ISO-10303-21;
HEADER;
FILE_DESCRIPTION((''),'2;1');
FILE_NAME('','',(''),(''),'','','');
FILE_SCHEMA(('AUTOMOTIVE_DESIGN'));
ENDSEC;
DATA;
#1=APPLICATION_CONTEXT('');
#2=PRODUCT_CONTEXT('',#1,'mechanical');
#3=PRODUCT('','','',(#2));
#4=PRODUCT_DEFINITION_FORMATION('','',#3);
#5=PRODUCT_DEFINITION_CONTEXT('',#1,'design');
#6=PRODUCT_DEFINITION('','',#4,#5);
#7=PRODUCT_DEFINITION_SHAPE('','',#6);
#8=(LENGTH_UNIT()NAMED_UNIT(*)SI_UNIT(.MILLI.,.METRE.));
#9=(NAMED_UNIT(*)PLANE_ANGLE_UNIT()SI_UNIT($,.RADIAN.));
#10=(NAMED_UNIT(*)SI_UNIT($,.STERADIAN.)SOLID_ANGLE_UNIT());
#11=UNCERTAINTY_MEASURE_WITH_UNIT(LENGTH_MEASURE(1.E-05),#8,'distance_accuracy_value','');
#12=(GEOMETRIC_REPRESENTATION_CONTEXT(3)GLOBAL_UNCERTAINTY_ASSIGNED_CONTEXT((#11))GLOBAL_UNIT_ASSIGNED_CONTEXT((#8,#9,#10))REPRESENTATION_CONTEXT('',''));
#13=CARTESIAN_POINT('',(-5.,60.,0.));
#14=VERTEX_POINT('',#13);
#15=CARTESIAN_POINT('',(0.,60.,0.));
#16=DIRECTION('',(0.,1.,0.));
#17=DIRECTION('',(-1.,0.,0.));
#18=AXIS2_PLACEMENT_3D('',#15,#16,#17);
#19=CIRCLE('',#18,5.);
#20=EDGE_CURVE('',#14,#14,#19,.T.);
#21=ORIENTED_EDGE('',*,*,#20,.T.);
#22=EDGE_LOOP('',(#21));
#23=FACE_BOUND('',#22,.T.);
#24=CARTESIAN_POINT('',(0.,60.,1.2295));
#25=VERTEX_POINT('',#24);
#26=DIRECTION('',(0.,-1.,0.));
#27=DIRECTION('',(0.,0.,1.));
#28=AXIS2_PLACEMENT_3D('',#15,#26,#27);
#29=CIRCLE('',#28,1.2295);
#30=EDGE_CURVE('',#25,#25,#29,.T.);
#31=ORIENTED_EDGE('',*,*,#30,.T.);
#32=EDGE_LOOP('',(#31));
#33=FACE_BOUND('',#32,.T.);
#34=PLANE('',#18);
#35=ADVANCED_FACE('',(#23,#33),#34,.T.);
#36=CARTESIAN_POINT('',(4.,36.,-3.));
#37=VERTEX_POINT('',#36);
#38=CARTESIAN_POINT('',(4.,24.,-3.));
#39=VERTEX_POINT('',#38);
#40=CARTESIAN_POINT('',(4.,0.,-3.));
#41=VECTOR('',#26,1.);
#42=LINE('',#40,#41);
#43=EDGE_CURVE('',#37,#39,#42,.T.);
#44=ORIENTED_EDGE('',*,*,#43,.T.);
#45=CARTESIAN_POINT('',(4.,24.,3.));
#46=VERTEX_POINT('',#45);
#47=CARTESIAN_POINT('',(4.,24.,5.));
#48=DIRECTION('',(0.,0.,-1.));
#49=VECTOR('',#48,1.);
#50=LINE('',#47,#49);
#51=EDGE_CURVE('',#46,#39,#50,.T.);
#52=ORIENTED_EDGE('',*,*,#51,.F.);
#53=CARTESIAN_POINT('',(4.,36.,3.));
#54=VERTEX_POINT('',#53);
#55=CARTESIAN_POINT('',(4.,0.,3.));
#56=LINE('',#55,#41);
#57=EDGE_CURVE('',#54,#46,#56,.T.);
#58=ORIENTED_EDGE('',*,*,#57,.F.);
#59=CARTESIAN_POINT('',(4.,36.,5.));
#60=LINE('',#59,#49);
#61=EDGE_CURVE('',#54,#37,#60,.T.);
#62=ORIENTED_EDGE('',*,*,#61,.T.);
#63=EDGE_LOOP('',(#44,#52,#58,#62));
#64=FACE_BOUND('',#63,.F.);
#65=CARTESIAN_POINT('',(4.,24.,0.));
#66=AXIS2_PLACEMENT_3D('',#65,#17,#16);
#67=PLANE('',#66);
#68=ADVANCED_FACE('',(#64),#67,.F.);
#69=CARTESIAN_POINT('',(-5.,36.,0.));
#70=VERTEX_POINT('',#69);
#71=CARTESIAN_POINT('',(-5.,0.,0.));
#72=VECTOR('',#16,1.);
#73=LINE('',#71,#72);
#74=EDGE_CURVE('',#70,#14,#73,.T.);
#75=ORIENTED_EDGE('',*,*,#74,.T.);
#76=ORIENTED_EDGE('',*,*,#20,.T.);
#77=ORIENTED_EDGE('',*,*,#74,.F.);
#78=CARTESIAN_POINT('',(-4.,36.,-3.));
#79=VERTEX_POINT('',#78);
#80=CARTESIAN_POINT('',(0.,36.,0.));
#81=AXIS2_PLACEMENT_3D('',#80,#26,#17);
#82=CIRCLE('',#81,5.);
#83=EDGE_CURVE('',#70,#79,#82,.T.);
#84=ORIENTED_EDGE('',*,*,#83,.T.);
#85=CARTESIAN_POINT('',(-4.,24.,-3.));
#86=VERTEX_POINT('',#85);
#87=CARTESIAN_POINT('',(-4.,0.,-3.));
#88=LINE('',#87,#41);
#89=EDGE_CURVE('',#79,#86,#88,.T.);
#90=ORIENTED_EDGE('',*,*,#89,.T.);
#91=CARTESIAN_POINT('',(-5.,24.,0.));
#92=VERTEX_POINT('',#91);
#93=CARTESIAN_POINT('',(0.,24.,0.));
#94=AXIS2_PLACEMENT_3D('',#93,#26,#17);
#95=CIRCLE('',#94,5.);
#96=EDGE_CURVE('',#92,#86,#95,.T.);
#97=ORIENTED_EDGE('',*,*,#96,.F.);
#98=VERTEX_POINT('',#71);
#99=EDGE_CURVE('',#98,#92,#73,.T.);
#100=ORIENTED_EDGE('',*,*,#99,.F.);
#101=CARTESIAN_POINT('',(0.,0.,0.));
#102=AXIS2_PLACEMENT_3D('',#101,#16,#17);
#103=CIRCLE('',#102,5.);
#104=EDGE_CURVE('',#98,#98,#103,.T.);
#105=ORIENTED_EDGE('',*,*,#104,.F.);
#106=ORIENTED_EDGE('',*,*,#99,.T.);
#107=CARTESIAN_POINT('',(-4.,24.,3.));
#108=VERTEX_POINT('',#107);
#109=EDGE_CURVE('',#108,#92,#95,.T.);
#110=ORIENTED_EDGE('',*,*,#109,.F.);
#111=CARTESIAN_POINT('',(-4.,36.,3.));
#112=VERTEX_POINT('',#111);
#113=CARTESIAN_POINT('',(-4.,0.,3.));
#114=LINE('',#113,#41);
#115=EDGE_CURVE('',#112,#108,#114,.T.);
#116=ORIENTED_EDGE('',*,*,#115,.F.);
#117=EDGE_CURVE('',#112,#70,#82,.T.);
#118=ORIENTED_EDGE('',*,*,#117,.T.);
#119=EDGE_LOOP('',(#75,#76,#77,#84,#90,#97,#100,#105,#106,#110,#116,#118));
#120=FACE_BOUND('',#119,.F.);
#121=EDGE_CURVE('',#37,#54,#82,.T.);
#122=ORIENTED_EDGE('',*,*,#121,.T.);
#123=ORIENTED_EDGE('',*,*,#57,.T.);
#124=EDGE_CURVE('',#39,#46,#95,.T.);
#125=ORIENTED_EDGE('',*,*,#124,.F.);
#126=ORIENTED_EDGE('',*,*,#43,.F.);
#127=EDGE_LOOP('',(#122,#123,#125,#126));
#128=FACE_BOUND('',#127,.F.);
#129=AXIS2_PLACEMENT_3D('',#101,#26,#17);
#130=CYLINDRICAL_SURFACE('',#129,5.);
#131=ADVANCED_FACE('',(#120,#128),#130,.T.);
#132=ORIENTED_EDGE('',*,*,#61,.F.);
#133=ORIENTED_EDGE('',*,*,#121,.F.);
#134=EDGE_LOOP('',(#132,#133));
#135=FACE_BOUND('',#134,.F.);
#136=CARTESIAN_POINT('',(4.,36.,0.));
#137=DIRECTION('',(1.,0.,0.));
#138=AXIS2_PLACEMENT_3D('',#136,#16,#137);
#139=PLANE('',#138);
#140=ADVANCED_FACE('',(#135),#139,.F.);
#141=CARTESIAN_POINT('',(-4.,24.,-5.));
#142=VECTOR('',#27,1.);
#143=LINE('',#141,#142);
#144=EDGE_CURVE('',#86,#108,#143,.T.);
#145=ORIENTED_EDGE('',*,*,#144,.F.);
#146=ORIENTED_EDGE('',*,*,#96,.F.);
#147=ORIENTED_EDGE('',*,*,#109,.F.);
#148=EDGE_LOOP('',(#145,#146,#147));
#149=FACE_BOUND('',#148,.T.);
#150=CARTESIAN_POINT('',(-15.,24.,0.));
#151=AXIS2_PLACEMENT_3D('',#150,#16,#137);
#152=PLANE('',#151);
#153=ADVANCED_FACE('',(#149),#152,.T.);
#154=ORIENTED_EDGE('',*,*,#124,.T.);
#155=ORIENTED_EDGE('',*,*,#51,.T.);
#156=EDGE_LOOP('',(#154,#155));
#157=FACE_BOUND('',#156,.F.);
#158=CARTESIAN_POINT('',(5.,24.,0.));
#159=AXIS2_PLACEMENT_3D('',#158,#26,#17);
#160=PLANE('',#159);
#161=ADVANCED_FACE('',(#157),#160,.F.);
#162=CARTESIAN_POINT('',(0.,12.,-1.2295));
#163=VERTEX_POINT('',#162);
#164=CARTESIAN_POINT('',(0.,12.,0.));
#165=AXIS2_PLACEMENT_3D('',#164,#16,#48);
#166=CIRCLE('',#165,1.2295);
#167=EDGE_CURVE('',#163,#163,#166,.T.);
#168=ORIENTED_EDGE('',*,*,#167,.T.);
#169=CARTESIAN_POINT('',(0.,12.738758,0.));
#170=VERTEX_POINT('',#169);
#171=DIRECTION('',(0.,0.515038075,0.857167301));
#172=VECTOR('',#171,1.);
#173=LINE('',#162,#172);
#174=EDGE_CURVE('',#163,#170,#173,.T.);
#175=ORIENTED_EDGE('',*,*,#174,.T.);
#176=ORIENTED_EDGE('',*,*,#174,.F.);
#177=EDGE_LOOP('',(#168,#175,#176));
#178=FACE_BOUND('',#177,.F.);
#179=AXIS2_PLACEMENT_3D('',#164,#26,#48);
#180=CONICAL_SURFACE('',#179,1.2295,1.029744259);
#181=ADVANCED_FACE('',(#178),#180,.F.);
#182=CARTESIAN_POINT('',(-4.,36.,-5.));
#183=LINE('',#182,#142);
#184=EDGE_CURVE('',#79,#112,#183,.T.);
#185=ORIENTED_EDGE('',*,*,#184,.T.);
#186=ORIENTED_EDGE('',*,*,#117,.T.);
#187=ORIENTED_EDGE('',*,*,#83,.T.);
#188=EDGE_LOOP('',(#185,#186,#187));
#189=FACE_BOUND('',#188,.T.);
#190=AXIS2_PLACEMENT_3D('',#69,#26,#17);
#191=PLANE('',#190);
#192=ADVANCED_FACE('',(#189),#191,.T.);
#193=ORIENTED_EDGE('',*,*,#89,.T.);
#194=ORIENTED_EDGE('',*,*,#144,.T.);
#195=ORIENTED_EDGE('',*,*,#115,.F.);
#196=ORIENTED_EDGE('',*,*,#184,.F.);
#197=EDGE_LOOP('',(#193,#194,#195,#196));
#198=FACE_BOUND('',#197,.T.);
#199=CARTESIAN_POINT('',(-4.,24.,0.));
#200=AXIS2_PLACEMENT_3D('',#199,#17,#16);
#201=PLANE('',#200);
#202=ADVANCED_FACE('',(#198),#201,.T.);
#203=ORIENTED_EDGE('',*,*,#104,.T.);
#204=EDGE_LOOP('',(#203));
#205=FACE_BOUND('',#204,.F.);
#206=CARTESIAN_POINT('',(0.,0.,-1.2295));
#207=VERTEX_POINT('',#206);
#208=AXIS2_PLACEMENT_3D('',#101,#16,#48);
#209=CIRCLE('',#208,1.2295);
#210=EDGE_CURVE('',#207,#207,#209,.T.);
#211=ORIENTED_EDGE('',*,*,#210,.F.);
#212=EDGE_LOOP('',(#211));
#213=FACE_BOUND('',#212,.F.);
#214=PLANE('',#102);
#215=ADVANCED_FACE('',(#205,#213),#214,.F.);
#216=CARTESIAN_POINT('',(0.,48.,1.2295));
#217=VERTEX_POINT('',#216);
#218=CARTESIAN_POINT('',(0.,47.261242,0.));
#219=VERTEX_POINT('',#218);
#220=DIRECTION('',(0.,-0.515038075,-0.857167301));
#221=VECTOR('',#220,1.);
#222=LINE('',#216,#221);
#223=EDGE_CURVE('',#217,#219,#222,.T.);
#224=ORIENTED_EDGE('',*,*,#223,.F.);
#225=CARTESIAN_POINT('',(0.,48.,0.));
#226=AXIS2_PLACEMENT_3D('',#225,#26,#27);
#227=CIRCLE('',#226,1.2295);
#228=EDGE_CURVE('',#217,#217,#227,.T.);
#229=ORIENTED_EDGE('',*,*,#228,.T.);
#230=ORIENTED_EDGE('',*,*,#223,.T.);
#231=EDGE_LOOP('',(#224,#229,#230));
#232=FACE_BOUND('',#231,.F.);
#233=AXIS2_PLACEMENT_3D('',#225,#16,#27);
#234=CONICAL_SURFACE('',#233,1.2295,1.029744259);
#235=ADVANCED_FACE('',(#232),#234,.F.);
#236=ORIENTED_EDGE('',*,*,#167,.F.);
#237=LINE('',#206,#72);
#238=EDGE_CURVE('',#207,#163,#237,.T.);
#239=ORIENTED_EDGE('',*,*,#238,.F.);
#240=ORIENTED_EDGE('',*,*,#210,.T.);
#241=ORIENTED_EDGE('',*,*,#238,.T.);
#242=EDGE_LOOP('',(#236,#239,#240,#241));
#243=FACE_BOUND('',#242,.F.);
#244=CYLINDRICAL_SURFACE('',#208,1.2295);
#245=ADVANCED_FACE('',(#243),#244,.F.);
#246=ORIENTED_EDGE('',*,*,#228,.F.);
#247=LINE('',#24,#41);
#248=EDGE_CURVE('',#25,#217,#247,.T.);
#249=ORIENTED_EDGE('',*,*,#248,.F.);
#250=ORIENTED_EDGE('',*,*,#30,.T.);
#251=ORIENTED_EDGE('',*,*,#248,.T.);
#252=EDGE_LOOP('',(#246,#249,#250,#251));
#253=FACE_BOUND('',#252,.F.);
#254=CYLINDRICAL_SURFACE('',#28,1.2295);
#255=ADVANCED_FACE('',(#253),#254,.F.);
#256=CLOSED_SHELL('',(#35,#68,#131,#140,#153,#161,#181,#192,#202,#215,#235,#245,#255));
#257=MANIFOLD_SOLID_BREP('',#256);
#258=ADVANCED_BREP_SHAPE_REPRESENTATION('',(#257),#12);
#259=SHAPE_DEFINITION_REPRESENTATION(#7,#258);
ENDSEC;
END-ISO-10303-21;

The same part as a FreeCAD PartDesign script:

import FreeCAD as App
import Part
import Sketcher

V = App.Vector
Q = App.Units.Quantity


def add_polygon(sketch, points):
    """Adds a closed chain of lines whose ends are joined by coincident constraints."""
    first, n = sketch.GeometryCount, len(points)
    for a, b in zip(points, points[1:] + points[:1]):
        sketch.addGeometry(Part.LineSegment(App.Vector(*a, 0), App.Vector(*b, 0)), False)
    for i in range(n):
        sketch.addConstraint(Sketcher.Constraint("Coincident", first + i, 2, first + (i + 1) % n, 1))

doc = App.newDocument("Part")
body = doc.addObject("PartDesign::Body", "Body")

# Sketch on XZ plane
sketch1 = body.newObject("Sketcher::SketchObject", "Sketch")
sketch1.AttachmentSupport = (doc.getObject("XZ_Plane"), [""])
sketch1.MapMode = "FlatFace"
sketch1.addGeometry(Part.Circle(V(0, 0, 0), V(0, 0, 1), 5), False)
sketch1.addConstraint([
    Sketcher.Constraint("Coincident", 0, 3, -1, 1),
    Sketcher.Constraint("Diameter", 0, Q("10 mm")),
])
pad1 = body.newObject("PartDesign::Pad", "Pad")
pad1.Profile = sketch1
pad1.Length = 60
pad1.Reversed = True

# Sketch on XZ plane
sketch2 = body.newObject("Sketcher::SketchObject", "Sketch001")
sketch2.AttachmentSupport = (doc.getObject("XZ_Plane"), [""])
sketch2.MapMode = "FlatFace"
sketch2.AttachmentOffset = App.Placement(V(0, 0, -60), App.Rotation())
sketch2.addGeometry(Part.Circle(V(0, 0, 0), V(0, 0, 1), 1.2), False)
sketch2.addConstraint([
    Sketcher.Constraint("Coincident", 0, 3, -1, 1),
    Sketcher.Constraint("Diameter", 0, Q("2.459 mm")),
])
doc.recompute()
hole = body.newObject("PartDesign::Hole", "Hole")
hole.Profile = sketch2
hole.ThreadType = "None"
hole.Diameter = 2.459
hole.DepthType = "Dimension"
hole.Depth = 12
hole.DrillPoint = "Angled"
hole.DrillPointAngle = 118
hole.Reversed = True

# Sketch on XZ plane
sketch3 = body.newObject("Sketcher::SketchObject", "Sketch002")
sketch3.AttachmentSupport = (doc.getObject("XZ_Plane"), [""])
sketch3.MapMode = "FlatFace"
sketch3.addGeometry(Part.Circle(V(0, 0, 0), V(0, 0, 1), 1.2), False)
sketch3.addConstraint([
    Sketcher.Constraint("Coincident", 0, 3, -1, 1),
    Sketcher.Constraint("Diameter", 0, Q("2.459 mm")),
])
doc.recompute()
hole2 = body.newObject("PartDesign::Hole", "Hole001")
hole2.Profile = sketch3
hole2.ThreadType = "None"
hole2.Diameter = 2.459
hole2.DepthType = "Dimension"
hole2.Depth = 12
hole2.DrillPoint = "Angled"
hole2.DrillPointAngle = 118

# Sketch on XY plane
sketch4 = body.newObject("Sketcher::SketchObject", "Sketch003")
sketch4.AttachmentSupport = (doc.getObject("XY_Plane"), [""])
sketch4.MapMode = "FlatFace"
add_polygon(sketch4, [(-15, 24), (-4, 24), (-4, 36), (-15, 36)])  # lines 0-3
add_polygon(sketch4, [(4, 24), (15, 24), (15, 36), (4, 36)])  # lines 4-7
sketch4.addConstraint([
    Sketcher.Constraint("Horizontal", 0),
    Sketcher.Constraint("Vertical", 1),
    Sketcher.Constraint("Horizontal", 2),
    Sketcher.Constraint("Vertical", 3),
    Sketcher.Constraint("Horizontal", 4),
    Sketcher.Constraint("Vertical", 5),
    Sketcher.Constraint("Horizontal", 6),
    Sketcher.Constraint("Vertical", 7),
    Sketcher.Constraint("Symmetric", 3, 2, 4, 2, -2),
    Sketcher.Constraint("Symmetric", 1, 2, 6, 2, -2),
    Sketcher.Constraint("DistanceY", 1, 1, 1, 2, Q("12 mm")),
    Sketcher.Constraint("DistanceY", -1, 1, 0, 2, Q("24 mm")),
    Sketcher.Constraint("DistanceX", 0, 1, 0, 2, Q("11 mm")),
    Sketcher.Constraint("DistanceX", 0, 2, -1, 1, Q("4 mm")),
])
pocket1 = body.newObject("PartDesign::Pocket", "Pocket")
pocket1.Profile = sketch4
pocket1.Length = 10
pocket1.Midplane = True

doc.recompute()
